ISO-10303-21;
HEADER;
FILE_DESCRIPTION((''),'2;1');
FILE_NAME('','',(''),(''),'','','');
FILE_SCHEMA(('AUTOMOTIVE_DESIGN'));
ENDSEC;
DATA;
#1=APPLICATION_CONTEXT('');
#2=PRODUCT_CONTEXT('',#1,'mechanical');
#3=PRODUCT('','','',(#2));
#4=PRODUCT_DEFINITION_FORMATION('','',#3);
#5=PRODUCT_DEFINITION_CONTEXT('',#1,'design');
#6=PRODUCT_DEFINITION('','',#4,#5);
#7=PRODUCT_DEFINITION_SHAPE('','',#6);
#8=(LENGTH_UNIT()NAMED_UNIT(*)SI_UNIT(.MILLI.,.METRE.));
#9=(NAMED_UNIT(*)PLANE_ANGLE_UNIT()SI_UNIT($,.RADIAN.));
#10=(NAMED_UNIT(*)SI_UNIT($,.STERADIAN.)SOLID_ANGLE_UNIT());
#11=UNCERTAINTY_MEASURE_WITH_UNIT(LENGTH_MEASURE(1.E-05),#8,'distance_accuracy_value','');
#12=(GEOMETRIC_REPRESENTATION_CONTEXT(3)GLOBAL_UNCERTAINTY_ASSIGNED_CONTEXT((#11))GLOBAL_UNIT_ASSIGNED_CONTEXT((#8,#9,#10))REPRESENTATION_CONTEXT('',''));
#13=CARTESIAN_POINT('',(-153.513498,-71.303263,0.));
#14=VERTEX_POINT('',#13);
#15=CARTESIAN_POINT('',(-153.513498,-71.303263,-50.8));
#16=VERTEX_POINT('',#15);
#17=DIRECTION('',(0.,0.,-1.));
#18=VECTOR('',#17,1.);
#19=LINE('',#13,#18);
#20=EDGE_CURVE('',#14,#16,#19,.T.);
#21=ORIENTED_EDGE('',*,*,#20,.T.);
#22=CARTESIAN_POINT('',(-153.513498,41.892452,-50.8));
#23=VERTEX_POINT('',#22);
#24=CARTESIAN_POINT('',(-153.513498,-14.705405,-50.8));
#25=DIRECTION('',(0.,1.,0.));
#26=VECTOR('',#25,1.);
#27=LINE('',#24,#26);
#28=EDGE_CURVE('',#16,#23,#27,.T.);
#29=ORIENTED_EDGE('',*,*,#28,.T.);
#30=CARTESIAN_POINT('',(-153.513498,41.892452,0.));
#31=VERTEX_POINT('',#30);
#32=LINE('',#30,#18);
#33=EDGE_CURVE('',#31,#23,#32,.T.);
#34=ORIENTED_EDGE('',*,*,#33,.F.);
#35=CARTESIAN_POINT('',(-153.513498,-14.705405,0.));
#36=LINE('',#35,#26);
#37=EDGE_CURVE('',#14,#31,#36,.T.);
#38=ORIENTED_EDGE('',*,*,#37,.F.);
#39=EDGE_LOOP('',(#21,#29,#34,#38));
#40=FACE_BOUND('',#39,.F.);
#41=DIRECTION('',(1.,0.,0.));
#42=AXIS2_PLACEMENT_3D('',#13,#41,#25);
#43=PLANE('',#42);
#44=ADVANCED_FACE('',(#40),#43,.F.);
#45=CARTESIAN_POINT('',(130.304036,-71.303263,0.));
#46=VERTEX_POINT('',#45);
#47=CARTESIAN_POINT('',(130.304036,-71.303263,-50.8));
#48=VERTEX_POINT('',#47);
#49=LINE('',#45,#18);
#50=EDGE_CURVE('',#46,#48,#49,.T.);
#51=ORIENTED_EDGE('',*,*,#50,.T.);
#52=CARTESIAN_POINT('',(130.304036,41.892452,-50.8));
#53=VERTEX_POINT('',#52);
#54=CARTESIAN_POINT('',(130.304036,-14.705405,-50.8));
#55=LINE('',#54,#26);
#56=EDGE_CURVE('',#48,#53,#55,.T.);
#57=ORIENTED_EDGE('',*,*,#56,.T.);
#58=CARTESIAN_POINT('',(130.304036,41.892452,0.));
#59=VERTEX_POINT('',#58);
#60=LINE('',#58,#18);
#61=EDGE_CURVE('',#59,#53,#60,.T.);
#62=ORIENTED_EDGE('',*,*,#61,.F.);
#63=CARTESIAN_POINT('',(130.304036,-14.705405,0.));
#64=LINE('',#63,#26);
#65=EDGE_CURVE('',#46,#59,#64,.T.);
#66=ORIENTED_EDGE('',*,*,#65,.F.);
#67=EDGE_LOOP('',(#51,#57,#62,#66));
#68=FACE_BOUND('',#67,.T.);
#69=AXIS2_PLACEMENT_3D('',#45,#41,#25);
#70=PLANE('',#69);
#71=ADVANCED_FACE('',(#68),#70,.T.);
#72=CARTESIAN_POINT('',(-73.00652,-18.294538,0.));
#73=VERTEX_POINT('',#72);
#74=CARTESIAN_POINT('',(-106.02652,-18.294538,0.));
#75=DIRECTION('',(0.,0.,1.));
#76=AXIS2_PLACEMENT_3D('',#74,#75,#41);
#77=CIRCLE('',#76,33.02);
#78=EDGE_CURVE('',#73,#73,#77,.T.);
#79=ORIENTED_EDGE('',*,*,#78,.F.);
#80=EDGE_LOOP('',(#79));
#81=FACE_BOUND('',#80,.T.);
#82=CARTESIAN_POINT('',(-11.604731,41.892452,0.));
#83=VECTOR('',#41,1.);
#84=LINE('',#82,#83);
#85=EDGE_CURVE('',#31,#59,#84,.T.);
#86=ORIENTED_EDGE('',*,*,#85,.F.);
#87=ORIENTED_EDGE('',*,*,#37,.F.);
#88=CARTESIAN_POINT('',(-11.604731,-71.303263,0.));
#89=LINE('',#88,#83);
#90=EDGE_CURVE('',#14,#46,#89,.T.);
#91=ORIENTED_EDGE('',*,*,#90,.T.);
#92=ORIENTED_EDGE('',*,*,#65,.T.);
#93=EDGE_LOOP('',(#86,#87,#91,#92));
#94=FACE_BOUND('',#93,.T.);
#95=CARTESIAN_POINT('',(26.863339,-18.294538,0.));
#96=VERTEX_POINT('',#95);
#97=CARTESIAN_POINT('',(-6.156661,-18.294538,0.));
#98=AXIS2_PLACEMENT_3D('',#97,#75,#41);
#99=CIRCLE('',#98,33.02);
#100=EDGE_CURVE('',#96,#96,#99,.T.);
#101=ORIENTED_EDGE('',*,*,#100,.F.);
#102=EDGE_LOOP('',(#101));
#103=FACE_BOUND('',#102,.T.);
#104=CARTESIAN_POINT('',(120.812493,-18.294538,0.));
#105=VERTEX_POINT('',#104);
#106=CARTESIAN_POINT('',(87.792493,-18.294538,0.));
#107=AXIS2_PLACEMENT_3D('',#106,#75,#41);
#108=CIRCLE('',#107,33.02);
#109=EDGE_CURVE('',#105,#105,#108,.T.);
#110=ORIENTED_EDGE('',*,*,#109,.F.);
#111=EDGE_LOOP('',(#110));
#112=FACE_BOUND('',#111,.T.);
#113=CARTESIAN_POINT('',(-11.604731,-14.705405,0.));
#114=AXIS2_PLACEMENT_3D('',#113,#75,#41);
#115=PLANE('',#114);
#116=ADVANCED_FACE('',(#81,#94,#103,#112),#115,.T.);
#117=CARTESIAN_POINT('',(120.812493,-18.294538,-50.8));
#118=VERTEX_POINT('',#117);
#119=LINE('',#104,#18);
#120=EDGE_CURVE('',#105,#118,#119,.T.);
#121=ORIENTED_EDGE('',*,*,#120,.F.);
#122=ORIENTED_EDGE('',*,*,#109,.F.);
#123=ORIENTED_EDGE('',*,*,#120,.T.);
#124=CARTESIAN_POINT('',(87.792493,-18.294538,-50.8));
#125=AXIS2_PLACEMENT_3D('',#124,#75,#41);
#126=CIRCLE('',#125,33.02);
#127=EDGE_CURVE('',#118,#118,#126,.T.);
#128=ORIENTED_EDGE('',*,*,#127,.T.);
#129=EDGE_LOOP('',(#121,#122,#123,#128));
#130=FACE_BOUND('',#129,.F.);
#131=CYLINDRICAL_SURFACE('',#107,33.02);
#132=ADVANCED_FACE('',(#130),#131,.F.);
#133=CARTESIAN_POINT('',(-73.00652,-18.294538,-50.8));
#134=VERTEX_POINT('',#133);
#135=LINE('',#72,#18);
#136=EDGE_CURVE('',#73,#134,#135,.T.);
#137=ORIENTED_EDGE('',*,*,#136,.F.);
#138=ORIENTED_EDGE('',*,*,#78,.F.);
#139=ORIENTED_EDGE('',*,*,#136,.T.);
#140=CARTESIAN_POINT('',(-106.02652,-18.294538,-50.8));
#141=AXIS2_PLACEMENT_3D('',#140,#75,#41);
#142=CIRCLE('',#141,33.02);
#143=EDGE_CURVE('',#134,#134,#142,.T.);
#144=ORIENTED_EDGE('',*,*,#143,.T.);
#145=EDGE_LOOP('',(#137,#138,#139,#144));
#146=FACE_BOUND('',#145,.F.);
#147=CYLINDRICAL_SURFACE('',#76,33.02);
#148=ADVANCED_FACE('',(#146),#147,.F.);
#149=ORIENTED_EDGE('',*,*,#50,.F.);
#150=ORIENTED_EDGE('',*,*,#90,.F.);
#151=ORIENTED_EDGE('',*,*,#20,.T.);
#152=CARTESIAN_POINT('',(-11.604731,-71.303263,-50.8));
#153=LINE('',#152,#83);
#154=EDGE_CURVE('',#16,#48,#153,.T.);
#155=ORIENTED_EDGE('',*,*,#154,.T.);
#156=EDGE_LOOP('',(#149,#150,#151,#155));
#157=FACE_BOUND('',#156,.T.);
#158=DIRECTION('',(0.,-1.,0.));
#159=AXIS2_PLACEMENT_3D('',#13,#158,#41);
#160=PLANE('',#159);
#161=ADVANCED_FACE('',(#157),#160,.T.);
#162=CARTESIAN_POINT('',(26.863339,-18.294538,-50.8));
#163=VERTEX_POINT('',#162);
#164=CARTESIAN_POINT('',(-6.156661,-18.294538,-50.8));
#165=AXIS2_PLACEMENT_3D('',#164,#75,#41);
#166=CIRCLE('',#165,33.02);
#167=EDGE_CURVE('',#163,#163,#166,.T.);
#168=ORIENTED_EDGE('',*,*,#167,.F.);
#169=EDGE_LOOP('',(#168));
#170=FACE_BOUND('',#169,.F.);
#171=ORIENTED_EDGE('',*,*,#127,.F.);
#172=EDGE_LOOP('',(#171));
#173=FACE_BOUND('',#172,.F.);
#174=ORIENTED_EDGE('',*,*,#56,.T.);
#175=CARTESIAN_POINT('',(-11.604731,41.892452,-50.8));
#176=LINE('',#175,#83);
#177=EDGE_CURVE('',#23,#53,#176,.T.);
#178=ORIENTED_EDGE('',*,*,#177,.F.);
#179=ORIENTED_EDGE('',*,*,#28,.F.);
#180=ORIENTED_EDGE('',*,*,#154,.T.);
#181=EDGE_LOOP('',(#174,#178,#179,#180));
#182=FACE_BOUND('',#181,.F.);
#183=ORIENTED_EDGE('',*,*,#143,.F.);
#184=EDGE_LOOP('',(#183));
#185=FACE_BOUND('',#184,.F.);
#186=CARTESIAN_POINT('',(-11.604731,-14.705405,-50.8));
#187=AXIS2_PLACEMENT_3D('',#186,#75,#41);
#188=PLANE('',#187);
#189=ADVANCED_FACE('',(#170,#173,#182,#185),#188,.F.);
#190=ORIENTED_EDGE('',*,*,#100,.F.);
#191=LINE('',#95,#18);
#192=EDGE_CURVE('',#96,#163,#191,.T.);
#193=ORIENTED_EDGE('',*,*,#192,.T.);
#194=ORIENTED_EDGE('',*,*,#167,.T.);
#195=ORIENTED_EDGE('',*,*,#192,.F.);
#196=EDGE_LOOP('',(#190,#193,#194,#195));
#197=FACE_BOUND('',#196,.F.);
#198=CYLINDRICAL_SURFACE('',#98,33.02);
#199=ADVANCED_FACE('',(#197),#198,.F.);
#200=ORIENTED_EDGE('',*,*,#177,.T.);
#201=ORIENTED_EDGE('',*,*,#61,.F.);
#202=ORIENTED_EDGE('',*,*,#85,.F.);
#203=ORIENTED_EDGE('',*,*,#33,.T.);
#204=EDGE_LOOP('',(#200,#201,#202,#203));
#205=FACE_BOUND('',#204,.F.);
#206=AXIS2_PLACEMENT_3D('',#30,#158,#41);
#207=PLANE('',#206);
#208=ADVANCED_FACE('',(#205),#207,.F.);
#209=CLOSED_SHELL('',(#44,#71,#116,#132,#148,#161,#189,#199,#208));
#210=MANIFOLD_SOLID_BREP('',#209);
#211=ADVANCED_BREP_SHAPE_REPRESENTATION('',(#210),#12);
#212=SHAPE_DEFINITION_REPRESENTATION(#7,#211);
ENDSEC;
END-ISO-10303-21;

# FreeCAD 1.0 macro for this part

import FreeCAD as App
import Part
import Sketcher
from FreeCAD import Vector
Q = App.Units.Quantity


def add_polygon(sketch, points):
    """Adds a closed chain of lines whose ends are joined by coincident constraints."""
    first, n = sketch.GeometryCount, len(points)
    for a, b in zip(points, points[1:] + points[:1]):
        sketch.addGeometry(Part.LineSegment(App.Vector(*a, 0), App.Vector(*b, 0)), False)
    for i in range(n):
        sketch.addConstraint(Sketcher.Constraint("Coincident", first + i, 2, first + (i + 1) % n, 1))

doc = App.newDocument("Part")
body = doc.addObject("PartDesign::Body", "Body")

sketch1 = doc.addObject("Sketcher::SketchObject", "Sketch")
body.addObject(sketch1)
sketch1.AttachmentSupport = (doc.XY_Plane, [""])
sketch1.MapMode = "FlatFace"
add_polygon(sketch1, [(-154, 42), (-154, -71), (130, -71), (130, 42)])
sketch1.addGeometry(Part.Circle(Vector(-106, -18, 0), Vector(0, 0, 1), 33), False)
sketch1.addGeometry(Part.Circle(Vector(-6, -18, 0), Vector(0, 0, 1), 33), False)
sketch1.addGeometry(Part.Circle(Vector(88, -18, 0), Vector(0, 0, 1), 33), False)
sketch1.addConstraint(Sketcher.Constraint("Vertical", 0))
sketch1.addConstraint(Sketcher.Constraint("Horizontal", 1))
sketch1.addConstraint(Sketcher.Constraint("Vertical", 2))
sketch1.addConstraint(Sketcher.Constraint("Horizontal", 3))
sketch1.addConstraint(Sketcher.Constraint("Equal", 4, 5))
sketch1.addConstraint(Sketcher.Constraint("Equal", 5, 6))
sketch1.addConstraint(Sketcher.Constraint("Horizontal", 4, 3, 5, 3))
sketch1.addConstraint(Sketcher.Constraint("Horizontal", 5, 3, 6, 3))
sketch1.addConstraint(Sketcher.Constraint("Diameter", 4, Q("2.6 in")))
sketch1.addConstraint(Sketcher.Constraint("DistanceX", 0, 2, -1, 1, Q("153.513498 mm")))
sketch1.addConstraint(Sketcher.Constraint("DistanceX", 1, 1, 1, 2, Q("283.817534 mm")))
sketch1.addConstraint(Sketcher.Constraint("DistanceY", 0, 2, 0, 1, Q("113.195715 mm")))
sketch1.addConstraint(Sketcher.Constraint("DistanceX", 4, 3, -1, 1, Q("106.02652 mm")))
sketch1.addConstraint(Sketcher.Constraint("DistanceX", 5, 3, -1, 1, Q("6.156661 mm")))
sketch1.addConstraint(Sketcher.Constraint("DistanceX", 0, 2, 6, 3, Q("241.305991 mm")))
sketch1.addConstraint(Sketcher.Constraint("DistanceY", 6, 3, 2, 2, Q("60.18699 mm")))
sketch1.addConstraint(Sketcher.Constraint("DistanceY", 4, 3, -1, 1, Q("18.294538 mm")))
pad1 = doc.addObject("PartDesign::Pad", "Pad")
body.addObject(pad1)
pad1.Profile = sketch1
pad1.Length = Q("2 in")
pad1.Reversed = True

doc.recompute()
